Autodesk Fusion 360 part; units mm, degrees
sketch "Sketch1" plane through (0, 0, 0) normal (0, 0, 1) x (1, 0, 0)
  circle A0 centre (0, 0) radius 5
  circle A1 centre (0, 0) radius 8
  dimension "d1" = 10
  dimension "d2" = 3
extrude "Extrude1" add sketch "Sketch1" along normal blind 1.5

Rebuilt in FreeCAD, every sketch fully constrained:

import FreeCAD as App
import Part
import Sketcher

V = App.Vector

doc = App.newDocument("Part")
body = doc.addObject("PartDesign::Body", "Body")

# Sketch on XY plane
sketch1 = body.newObject("Sketcher::SketchObject", "Sketch")
sketch1.AttachmentSupport = (doc.getObject("XY_Plane"), [""])
sketch1.MapMode = "FlatFace"
sketch1.addGeometry([
    Part.Circle(V(0, 0, 0), V(0, 0, 1), 8),
    Part.Circle(V(0, 0, 0), V(0, 0, 1), 5),
], False)
sketch1.addConstraint([
    Sketcher.Constraint("Coincident", 0, 3, -1, 1),
    Sketcher.Constraint("Coincident", 1, 3, -1, 1),
    Sketcher.Constraint("Diameter", 1, 10.0),
    Sketcher.Constraint("Diameter", 0, 16.0),
])
pad1 = body.newObject("PartDesign::Pad", "Pad")
pad1.Profile = sketch1
pad1.Length = 1.5

doc.recompute()
